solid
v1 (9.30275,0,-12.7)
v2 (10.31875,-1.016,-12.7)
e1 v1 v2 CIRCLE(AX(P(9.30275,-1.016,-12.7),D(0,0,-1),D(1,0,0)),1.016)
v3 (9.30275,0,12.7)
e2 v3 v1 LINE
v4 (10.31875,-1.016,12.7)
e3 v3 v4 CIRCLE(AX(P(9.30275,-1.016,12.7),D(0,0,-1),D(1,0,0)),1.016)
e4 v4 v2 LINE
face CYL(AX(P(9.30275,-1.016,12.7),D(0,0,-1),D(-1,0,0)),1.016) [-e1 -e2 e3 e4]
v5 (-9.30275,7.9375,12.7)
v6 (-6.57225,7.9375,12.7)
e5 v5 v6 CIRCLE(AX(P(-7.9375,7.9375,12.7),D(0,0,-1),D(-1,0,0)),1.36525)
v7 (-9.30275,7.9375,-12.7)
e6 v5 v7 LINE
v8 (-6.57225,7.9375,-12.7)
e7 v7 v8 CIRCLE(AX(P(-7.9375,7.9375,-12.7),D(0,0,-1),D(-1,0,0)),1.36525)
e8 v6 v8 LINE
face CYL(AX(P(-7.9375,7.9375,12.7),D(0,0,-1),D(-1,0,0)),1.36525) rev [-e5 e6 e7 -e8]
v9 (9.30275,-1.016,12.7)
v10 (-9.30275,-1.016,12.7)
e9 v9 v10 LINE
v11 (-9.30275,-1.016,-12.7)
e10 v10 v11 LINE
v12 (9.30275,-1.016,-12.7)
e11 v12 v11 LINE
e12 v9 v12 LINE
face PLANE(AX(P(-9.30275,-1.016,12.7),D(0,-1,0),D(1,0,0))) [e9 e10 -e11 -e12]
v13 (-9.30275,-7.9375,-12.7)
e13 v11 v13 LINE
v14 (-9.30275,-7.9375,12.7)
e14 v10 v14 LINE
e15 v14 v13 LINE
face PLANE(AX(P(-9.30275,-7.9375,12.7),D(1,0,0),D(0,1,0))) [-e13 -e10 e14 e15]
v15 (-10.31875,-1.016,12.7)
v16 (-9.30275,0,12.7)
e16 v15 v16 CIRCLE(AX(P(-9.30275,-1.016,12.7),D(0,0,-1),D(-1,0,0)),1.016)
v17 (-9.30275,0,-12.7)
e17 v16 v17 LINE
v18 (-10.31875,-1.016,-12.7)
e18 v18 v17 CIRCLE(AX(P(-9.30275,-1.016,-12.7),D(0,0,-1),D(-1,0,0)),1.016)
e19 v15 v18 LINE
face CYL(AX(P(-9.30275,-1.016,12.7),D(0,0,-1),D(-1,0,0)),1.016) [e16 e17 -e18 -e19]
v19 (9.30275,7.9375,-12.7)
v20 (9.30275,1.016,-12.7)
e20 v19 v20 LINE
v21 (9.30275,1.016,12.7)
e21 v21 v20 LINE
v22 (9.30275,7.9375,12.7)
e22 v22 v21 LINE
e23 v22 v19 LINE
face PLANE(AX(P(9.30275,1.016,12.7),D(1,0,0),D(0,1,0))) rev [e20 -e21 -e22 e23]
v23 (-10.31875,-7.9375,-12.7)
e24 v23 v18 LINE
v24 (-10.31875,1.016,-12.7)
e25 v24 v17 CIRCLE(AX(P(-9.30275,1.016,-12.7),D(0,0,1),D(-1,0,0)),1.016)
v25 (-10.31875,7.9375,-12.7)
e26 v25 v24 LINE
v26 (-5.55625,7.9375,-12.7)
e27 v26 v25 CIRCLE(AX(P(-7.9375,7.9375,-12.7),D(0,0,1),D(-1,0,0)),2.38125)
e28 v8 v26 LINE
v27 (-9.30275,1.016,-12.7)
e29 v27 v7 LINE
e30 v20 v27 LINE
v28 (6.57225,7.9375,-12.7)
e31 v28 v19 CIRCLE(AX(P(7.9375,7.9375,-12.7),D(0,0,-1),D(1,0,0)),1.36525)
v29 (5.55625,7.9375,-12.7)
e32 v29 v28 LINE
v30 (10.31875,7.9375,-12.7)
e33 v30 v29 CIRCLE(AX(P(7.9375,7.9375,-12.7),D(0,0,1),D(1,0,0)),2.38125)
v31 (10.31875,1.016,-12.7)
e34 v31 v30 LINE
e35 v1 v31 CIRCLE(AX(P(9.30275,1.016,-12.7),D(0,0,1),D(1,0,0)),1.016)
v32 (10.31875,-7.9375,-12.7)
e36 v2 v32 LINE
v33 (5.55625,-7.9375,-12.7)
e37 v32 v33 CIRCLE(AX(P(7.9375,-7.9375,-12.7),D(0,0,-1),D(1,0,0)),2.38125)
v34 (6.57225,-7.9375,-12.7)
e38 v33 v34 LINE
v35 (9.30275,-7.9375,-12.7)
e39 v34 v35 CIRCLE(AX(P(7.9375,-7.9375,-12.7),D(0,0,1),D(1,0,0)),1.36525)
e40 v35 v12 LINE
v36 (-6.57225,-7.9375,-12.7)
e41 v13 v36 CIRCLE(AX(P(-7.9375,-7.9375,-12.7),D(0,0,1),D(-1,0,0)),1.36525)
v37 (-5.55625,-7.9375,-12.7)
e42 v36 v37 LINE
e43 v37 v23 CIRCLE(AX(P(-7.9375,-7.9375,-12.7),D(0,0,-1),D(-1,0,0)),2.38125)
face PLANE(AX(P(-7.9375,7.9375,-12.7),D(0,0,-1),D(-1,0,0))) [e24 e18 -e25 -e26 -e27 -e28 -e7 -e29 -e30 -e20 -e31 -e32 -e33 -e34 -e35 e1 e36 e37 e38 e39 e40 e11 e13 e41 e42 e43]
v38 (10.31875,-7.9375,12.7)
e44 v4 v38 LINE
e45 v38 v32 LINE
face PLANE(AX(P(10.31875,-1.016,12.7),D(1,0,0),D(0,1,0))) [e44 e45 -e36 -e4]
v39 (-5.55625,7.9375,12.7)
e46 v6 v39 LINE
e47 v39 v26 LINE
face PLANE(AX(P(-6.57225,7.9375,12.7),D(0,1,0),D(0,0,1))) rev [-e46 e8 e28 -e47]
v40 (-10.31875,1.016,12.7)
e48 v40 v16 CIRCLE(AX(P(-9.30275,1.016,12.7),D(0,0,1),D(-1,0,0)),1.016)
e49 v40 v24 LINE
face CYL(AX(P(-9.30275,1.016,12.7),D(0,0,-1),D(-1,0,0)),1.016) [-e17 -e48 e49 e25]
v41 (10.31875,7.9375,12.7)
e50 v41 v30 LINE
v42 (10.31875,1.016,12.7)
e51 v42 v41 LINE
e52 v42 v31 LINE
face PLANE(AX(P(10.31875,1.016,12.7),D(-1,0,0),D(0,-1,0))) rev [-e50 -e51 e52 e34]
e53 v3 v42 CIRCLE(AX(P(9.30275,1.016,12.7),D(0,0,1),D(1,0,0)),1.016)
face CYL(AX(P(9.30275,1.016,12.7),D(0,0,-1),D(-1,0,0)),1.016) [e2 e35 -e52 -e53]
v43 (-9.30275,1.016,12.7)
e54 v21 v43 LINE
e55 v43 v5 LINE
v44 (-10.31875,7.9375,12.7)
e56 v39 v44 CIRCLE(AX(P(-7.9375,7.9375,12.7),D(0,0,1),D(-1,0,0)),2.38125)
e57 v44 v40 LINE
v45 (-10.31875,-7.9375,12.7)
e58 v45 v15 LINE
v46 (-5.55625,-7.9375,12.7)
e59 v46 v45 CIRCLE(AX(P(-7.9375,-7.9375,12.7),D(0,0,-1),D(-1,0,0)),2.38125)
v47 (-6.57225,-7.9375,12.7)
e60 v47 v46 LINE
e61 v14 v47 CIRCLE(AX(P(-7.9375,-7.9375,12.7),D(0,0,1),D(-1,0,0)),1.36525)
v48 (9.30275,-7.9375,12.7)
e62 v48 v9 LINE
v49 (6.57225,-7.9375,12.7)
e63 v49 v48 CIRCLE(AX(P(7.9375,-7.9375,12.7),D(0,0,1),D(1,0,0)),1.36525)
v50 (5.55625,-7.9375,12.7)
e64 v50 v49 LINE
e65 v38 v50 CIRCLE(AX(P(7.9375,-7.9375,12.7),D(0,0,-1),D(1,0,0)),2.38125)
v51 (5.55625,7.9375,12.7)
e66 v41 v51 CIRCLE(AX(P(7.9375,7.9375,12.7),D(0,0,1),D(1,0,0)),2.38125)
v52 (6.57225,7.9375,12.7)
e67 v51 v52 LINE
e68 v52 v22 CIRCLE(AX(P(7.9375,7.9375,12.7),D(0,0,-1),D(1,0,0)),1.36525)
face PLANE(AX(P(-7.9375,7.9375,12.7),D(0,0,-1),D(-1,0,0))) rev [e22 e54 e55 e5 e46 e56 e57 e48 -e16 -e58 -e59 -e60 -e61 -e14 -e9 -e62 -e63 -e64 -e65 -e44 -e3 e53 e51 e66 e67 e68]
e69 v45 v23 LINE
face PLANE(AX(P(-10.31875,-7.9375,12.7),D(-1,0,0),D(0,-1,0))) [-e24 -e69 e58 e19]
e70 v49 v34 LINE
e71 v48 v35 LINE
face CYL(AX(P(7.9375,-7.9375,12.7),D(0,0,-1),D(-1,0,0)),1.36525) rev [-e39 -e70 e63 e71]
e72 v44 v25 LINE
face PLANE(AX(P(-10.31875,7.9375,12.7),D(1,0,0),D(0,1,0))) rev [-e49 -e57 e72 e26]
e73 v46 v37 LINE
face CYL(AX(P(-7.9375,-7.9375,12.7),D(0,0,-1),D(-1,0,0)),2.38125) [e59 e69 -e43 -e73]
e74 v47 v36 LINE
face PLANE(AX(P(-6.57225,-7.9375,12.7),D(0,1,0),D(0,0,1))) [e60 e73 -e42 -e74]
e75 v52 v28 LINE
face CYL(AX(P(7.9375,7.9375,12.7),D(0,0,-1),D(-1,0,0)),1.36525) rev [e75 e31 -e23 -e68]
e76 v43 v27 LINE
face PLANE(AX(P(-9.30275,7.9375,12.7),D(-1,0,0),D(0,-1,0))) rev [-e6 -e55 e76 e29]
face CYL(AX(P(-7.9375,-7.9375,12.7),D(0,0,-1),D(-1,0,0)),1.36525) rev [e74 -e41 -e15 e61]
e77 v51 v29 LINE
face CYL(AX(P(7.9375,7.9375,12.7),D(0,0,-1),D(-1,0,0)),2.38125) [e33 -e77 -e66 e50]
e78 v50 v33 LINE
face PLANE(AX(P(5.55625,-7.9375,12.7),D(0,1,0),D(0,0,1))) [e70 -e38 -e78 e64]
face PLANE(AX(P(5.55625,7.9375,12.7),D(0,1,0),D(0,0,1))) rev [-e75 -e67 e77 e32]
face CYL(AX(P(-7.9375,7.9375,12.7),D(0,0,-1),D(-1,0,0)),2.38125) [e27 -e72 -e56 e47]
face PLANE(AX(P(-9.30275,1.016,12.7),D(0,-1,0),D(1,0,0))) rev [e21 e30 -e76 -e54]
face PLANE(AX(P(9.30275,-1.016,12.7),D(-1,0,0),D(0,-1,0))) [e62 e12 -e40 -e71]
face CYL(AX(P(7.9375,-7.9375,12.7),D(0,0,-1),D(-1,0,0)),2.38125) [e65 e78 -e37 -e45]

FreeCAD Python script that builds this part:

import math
import FreeCAD as App
import Part
import Sketcher
from FreeCAD import Vector
Q = App.Units.Quantity

doc = App.newDocument("Part")
params = doc.addObject("Spreadsheet::Sheet", "Params")
for row, (alias, value) in enumerate([
    ("sketch1_radius", "0.04 in"),
    ("sketch1_radius2", "0.09375 in"),
    ("pad1_length", "1 in"),
], start=1):
    params.set(f"A{row}", alias)
    params.set(f"B{row}", "=" + value)
    params.setAlias(f"B{row}", alias)

body = doc.addObject("PartDesign::Body", "Body")

sketch1 = doc.addObject("Sketcher::SketchObject", "Sketch")
body.addObject(sketch1)
sketch1.AttachmentSupport = (doc.XY_Plane, [""])
sketch1.MapMode = "FlatFace"
sketch1.addGeometry([
    Part.LineSegment(Vector(-10.3, 7.9, 0), Vector(-10.3, 1, 0)),
    Part.ArcOfCircle(Part.Circle(Vector(-9.3, 1, 0), Vector(0, 0, 1), 1), math.radians(180), math.radians(270)),
    Part.LineSegment(Vector(-9.3, 0, 0), Vector(9.3, 0, 0)),
    Part.ArcOfCircle(Part.Circle(Vector(9.3, 1, 0), Vector(0, 0, 1), 1), math.radians(-90), math.radians(0)),
    Part.LineSegment(Vector(10.3, 1, 0), Vector(10.3, 7.9, 0)),
    Part.ArcOfCircle(Part.Circle(Vector(7.9, 7.9, 0), Vector(0, 0, 1), 2.4), math.radians(0), math.radians(180)),
    Part.LineSegment(Vector(5.6, 7.9, 0), Vector(6.6, 7.9, 0)),
    Part.ArcOfCircle(Part.Circle(Vector(7.9, 7.9, 0), Vector(0, 0, 1), 1.4), math.radians(0), math.radians(180)),
    Part.LineSegment(Vector(9.3, 7.9, 0), Vector(9.3, 1, 0)),
    Part.LineSegment(Vector(9.3, 1, 0), Vector(-9.3, 1, 0)),
    Part.LineSegment(Vector(-9.3, 1, 0), Vector(-9.3, 7.9, 0)),
    Part.ArcOfCircle(Part.Circle(Vector(-7.9, 7.9, 0), Vector(0, 0, 1), 1.4), math.radians(0), math.radians(180)),
    Part.LineSegment(Vector(-6.6, 7.9, 0), Vector(-5.6, 7.9, 0)),
    Part.ArcOfCircle(Part.Circle(Vector(-7.9, 7.9, 0), Vector(0, 0, 1), 2.4), math.radians(0), math.radians(180)),
], False)
sketch1.addConstraint([
    Sketcher.Constraint("Tangent", 0, 2, 1, 1),
    Sketcher.Constraint("Tangent", 1, 2, 2, 1),
    Sketcher.Constraint("Tangent", 2, 2, 3, 1),
    Sketcher.Constraint("Tangent", 3, 2, 4, 1),
    Sketcher.Constraint("Tangent", 4, 2, 5, 1),
    Sketcher.Constraint("Coincident", 5, 2, 6, 1),
    Sketcher.Constraint("Coincident", 6, 2, 7, 2),
    Sketcher.Constraint("Tangent", 7, 1, 8, 1),
    Sketcher.Constraint("Coincident", 8, 2, 9, 1),
    Sketcher.Constraint("Coincident", 9, 2, 10, 1),
    Sketcher.Constraint("Tangent", 10, 2, 11, 2),
    Sketcher.Constraint("Coincident", 11, 1, 12, 1),
    Sketcher.Constraint("Coincident", 12, 2, 13, 1),
    Sketcher.Constraint("Tangent", 13, 2, 0, 1),
    Sketcher.Constraint("Vertical", 0),
    Sketcher.Constraint("Horizontal", 2),
    Sketcher.Constraint("Vertical", 4),
    Sketcher.Constraint("Horizontal", 6),
    Sketcher.Constraint("Vertical", 8),
    Sketcher.Constraint("Horizontal", 9),
    Sketcher.Constraint("Vertical", 10),
    Sketcher.Constraint("Horizontal", 12),
    Sketcher.Constraint("Coincident", 7, 3, 5, 3),
    Sketcher.Constraint("Coincident", 13, 3, 11, 3),
    Sketcher.Constraint("Coincident", 8, 2, 3, 3),
    Sketcher.Constraint("Coincident", 9, 2, 1, 3),
    Sketcher.Constraint("Equal", 7, 11),
    Sketcher.Constraint("Symmetric", 1, 2, 2, 2, -1, 1),
    Sketcher.Constraint("Horizontal", 7, 3, 11, 3),
    Sketcher.Constraint("Horizontal", 4, 2, 5, 2),
    Sketcher.Constraint("Horizontal", 10, 2, 11, 1),
    Sketcher.Constraint("Radius", 1, Q("0.04 in")),
    Sketcher.Constraint("Radius", 5, Q("0.09375 in")),
    Sketcher.Constraint("DistanceX", 2, 1, 2, 2, Q("0.7325 in")),
    Sketcher.Constraint("DistanceY", 0, 2, 0, 1, Q("0.2725 in")),
])
sketch1.setExpression("Constraints[31]", "Params.sketch1_radius")
sketch1.setExpression("Constraints[32]", "Params.sketch1_radius2")
pad1 = doc.addObject("PartDesign::Pad", "Pad")
body.addObject(pad1)
pad1.Profile = sketch1
pad1.setExpression("Length", "Params.pad1_length")
pad1.Midplane = True
doc.recompute()

mirrored = doc.addObject("PartDesign::Mirrored", "Mirrored")
body.addObject(mirrored)
mirrored.Originals = [pad1]
mirrored.MirrorPlane = (doc.XZ_Plane, [""])
body.Tip = mirrored

doc.recompute()
